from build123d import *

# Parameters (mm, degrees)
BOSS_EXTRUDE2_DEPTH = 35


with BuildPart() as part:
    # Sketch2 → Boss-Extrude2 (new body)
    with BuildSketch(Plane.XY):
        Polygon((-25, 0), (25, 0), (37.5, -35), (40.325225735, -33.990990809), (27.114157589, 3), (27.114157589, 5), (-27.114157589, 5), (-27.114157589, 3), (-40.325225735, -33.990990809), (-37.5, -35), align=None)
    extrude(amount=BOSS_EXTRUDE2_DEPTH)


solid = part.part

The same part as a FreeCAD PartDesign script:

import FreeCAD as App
import Part
import Sketcher
from FreeCAD import Vector


def add_polygon(sketch, points):
    """Adds a closed chain of lines whose ends are joined by coincident constraints."""
    first, n = sketch.GeometryCount, len(points)
    for a, b in zip(points, points[1:] + points[:1]):
        sketch.addGeometry(Part.LineSegment(App.Vector(*a, 0), App.Vector(*b, 0)), False)
    for i in range(n):
        sketch.addConstraint(Sketcher.Constraint("Coincident", first + i, 2, first + (i + 1) % n, 1))

doc = App.newDocument("Part")
body = doc.addObject("PartDesign::Body", "Body")

sketch1 = body.newObject("Sketcher::SketchObject", "Sketch")
sketch1.AttachmentSupport = (doc.getObject("XY_Plane"), [""])
sketch1.MapMode = "FlatFace"
add_polygon(sketch1, [(-25, 0), (25, 0), (37.5, -35), (40.325226, -33.990991), (27.114158, 3), (27.114158, 5), (-27.114158, 5), (-27.114158, 3), (-40.325226, -33.990991), (-37.5, -35)])
sketch1.addConstraint([
    Sketcher.Constraint("Horizontal", 0),
    Sketcher.Constraint("Vertical", 4),
    Sketcher.Constraint("Horizontal", 5),
    Sketcher.Constraint("Vertical", 6),
    Sketcher.Constraint("Symmetric", 0, 2, 9, 2, -1, 1),
    Sketcher.Constraint("Symmetric", 3, 2, 6, 2, -2),
    Sketcher.Constraint("Symmetric", 2, 2, 7, 2, -2),
    Sketcher.Constraint("Symmetric", 1, 2, 8, 2, -2),
    Sketcher.Constraint("Perpendicular", 1, 2),
    Sketcher.Constraint("Perpendicular", 2, 3),
    Sketcher.Constraint("DistanceX", 0, 1, 0, 2, 50.0),
    Sketcher.Constraint("DistanceY", 4, 1, 4, 2, 2.0),
    Sketcher.Constraint("Distance", 2, 3.0),
    Sketcher.Constraint("DistanceY", 1, 2, -1, 1, 35.0),
    Sketcher.Constraint("DistanceY", -1, 1, 3, 2, 3.0),
    Sketcher.Constraint("DistanceX", -1, 1, 1, 2, 37.5),
])
pad1 = body.newObject("PartDesign::Pad", "Pad")
pad1.Profile = sketch1
pad1.Length = 35

doc.recompute()
